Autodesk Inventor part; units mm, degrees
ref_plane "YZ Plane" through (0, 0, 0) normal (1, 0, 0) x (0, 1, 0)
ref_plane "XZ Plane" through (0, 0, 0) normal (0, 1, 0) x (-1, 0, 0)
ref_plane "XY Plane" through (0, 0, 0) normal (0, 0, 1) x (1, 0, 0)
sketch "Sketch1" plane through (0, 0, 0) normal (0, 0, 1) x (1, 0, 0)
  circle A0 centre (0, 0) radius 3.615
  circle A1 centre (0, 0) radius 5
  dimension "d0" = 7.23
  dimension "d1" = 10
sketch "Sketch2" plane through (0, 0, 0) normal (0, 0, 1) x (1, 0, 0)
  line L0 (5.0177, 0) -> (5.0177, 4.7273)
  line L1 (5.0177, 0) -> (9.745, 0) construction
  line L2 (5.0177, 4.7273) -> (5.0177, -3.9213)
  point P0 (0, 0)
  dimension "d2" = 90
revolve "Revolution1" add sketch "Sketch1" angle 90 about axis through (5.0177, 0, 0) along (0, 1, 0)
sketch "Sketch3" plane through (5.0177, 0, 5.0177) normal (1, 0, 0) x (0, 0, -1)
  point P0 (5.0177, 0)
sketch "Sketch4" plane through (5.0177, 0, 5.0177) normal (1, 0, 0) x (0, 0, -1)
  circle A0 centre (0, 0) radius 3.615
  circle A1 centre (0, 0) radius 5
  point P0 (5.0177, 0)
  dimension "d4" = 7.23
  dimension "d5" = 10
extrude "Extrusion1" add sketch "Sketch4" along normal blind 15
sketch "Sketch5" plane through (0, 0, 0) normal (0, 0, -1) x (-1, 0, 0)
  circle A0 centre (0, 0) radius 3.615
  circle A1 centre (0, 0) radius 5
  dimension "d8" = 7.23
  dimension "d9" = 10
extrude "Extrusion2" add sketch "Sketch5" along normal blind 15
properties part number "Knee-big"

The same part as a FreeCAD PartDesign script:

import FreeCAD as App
import Part
import Sketcher
Q = App.Units.Quantity

doc = App.newDocument("Part")
body = doc.addObject("PartDesign::Body", "Body")

# Sketch on XY plane
sketch1 = body.newObject("Sketcher::SketchObject", "Sketch")
sketch1.AttachmentSupport = (doc.getObject("XY_Plane"), [""])
sketch1.MapMode = "FlatFace"
sketch1.addGeometry([
    Part.Circle(App.Vector(0, 0, 0), App.Vector(0, 0, 1), 5),
    Part.Circle(App.Vector(0, 0, 0), App.Vector(0, 0, 1), 3.6),
], False)
sketch1.addGeometry(Part.LineSegment(App.Vector(5, 0, 0), App.Vector(5, 10, 0)), True)  # axis
sketch1.addConstraint([
    Sketcher.Constraint("Vertical", 2),
    Sketcher.Constraint("Coincident", 0, 3, -1, 1),
    Sketcher.Constraint("Coincident", 1, 3, -1, 1),
    Sketcher.Constraint("PointOnObject", 2, 1, -1),
    Sketcher.Constraint("Diameter", 0, Q("10 mm")),
    Sketcher.Constraint("Diameter", 1, Q("7.23 mm")),
    Sketcher.Constraint("DistanceY", 2, 1, 2, 2, Q("10 mm")),
    Sketcher.Constraint("DistanceX", -1, 1, 2, 1, Q("5.0177 mm")),
])
revolution = body.newObject("PartDesign::Revolution", "Revolution")
revolution.Profile = sketch1
revolution.ReferenceAxis = (sketch1, ["Axis0"])
revolution.Angle = 90

# Sketch on YZ plane
sketch2 = body.newObject("Sketcher::SketchObject", "Sketch001")
sketch2.AttachmentSupport = (doc.getObject("YZ_Plane"), [""])
sketch2.MapMode = "FlatFace"
sketch2.AttachmentOffset = App.Placement(App.Vector(0, 0, 5.0177), App.Rotation())
sketch2.addGeometry([
    Part.Circle(App.Vector(0, 5, 0), App.Vector(0, 0, 1), 5),
    Part.Circle(App.Vector(0, 5, 0), App.Vector(0, 0, 1), 3.6),
], False)
sketch2.addConstraint([
    Sketcher.Constraint("Coincident", 1, 3, 0, 3),
    Sketcher.Constraint("PointOnObject", 0, 3, -2),
    Sketcher.Constraint("Diameter", 0, Q("10 mm")),
    Sketcher.Constraint("Diameter", 1, Q("7.23 mm")),
    Sketcher.Constraint("DistanceY", -1, 1, 0, 3, Q("5.0177 mm")),
])
pad1 = body.newObject("PartDesign::Pad", "Pad")
pad1.Profile = sketch2
pad1.Length = 15

# Sketch on XY plane
sketch3 = body.newObject("Sketcher::SketchObject", "Sketch002")
sketch3.AttachmentSupport = (doc.getObject("XY_Plane"), [""])
sketch3.MapMode = "FlatFace"
sketch3.addGeometry([
    Part.Circle(App.Vector(0, 0, 0), App.Vector(0, 0, 1), 5),
    Part.Circle(App.Vector(0, 0, 0), App.Vector(0, 0, 1), 3.6),
], False)
sketch3.addConstraint([
    Sketcher.Constraint("Coincident", 0, 3, -1, 1),
    Sketcher.Constraint("Coincident", 1, 3, -1, 1),
    Sketcher.Constraint("Diameter", 0, Q("10 mm")),
    Sketcher.Constraint("Diameter", 1, Q("7.23 mm")),
])
pad2 = body.newObject("PartDesign::Pad", "Pad001")
pad2.Profile = sketch3
pad2.Length = 15
pad2.Reversed = True

doc.recompute()
